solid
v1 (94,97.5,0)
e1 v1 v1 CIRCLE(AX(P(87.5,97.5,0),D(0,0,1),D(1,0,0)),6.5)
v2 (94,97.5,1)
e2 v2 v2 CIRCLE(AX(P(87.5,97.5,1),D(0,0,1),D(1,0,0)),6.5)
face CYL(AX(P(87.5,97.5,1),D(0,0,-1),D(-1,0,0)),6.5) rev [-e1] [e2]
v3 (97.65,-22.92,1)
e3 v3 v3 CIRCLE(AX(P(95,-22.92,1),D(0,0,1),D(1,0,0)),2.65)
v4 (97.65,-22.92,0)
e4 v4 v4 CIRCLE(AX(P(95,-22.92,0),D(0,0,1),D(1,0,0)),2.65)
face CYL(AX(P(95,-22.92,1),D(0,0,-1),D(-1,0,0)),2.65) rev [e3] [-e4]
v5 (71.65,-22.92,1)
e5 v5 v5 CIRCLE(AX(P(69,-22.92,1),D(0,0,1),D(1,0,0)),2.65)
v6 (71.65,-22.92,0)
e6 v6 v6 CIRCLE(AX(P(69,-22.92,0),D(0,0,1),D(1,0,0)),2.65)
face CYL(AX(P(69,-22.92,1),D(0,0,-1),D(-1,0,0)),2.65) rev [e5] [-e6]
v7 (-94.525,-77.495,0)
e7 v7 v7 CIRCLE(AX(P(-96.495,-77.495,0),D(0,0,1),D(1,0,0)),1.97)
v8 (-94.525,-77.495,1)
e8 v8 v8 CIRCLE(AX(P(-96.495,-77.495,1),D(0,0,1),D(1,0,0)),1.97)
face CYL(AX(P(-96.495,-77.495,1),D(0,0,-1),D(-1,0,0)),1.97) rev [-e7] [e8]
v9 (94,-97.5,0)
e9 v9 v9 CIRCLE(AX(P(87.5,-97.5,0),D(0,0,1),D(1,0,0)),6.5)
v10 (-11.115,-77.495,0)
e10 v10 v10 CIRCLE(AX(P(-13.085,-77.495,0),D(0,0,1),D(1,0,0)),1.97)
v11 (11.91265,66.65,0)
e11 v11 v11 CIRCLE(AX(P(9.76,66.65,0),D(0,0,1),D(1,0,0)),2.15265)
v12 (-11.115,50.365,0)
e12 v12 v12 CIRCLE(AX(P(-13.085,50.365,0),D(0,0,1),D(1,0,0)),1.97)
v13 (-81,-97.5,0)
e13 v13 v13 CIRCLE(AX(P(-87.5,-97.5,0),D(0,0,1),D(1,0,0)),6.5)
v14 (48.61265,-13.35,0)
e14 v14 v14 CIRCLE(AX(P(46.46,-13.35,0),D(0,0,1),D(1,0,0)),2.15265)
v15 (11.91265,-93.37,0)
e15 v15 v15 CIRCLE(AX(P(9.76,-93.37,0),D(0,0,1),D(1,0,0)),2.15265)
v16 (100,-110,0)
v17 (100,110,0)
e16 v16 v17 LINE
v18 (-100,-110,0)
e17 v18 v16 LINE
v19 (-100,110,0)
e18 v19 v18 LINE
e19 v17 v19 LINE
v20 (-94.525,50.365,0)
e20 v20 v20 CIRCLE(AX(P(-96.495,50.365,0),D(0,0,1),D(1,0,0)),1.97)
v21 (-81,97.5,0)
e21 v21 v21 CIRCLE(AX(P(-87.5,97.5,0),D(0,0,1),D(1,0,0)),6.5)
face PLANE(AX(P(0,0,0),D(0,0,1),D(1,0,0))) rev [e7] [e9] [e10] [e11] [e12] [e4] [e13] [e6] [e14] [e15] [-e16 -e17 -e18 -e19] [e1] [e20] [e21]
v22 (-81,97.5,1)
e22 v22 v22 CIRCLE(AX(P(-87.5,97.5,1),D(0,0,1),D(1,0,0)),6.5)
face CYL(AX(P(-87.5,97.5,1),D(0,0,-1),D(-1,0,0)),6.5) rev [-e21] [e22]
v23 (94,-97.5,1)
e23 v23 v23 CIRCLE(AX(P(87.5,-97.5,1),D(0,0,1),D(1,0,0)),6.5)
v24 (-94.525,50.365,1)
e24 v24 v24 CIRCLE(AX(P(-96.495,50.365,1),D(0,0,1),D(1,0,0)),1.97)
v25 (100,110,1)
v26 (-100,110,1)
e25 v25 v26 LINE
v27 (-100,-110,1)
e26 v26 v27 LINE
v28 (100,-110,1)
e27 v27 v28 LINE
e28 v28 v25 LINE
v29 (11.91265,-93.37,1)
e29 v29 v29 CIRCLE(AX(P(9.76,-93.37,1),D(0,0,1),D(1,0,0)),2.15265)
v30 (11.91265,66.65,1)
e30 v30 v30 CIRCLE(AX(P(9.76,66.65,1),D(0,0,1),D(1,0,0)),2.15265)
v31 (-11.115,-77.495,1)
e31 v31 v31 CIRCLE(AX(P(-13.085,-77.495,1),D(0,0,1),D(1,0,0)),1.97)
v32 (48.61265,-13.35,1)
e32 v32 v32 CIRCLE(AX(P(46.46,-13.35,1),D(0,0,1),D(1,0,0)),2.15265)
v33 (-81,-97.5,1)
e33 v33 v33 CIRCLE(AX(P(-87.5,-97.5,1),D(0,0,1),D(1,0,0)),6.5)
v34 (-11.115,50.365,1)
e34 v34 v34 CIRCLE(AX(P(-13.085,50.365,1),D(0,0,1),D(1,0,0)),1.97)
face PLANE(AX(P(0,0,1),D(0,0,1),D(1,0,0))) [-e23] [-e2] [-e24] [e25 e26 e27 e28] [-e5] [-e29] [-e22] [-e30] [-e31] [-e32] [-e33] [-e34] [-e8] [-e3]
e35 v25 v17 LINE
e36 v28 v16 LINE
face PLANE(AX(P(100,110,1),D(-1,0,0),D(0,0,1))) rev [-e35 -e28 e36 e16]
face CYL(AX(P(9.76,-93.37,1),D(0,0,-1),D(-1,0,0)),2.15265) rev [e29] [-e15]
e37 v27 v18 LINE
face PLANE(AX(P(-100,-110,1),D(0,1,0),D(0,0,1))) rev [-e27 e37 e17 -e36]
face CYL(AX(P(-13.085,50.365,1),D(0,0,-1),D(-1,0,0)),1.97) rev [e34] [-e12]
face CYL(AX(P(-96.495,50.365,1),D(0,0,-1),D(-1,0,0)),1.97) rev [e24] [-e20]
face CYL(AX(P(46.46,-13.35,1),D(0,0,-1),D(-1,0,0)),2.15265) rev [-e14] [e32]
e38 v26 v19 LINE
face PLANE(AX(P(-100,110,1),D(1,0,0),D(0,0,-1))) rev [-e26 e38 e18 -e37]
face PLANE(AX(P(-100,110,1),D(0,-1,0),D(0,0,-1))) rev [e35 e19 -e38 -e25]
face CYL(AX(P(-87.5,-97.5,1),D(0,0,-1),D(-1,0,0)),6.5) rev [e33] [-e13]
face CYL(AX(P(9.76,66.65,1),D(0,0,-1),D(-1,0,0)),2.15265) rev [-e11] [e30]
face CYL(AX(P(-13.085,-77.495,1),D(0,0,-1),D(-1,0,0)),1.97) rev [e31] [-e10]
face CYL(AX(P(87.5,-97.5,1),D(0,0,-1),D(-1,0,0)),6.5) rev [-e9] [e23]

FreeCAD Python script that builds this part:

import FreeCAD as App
import Part
import Sketcher
from FreeCAD import Vector
Q = App.Units.Quantity

doc = App.newDocument("Part")
params = doc.addObject("Spreadsheet::Sheet", "Params")
for row, (alias, value) in enumerate([
    ("sketch1_diameter", "13 mm"),
    ("sketch1_diameter2", "5.3 mm"),
    ("sketch1_diameter3", "3.94 mm"),
    ("sketch1_width", "200 mm"),
    ("sketch1_height", "220 mm"),
    ("pad1_length", "1 mm"),
], start=1):
    params.set(f"A{row}", alias)
    params.set(f"B{row}", "=" + value)
    params.setAlias(f"B{row}", alias)

body = doc.addObject("PartDesign::Body", "Body")

# Sketch on XY plane
sketch1 = body.newObject("Sketcher::SketchObject", "Sketch")
sketch1.AttachmentSupport = (doc.getObject("XY_Plane"), [""])
sketch1.MapMode = "FlatFace"
sketch1.addGeometry(Part.LineSegment(Vector(-100, 110, 0), Vector(-100, -110, 0)), False)
sketch1.addGeometry(Part.LineSegment(Vector(-100, -110, 0), Vector(100, -110, 0)), False)
sketch1.addGeometry(Part.LineSegment(Vector(100, -110, 0), Vector(100, 110, 0)), False)
sketch1.addGeometry(Part.LineSegment(Vector(100, 110, 0), Vector(-100, 110, 0)), False)
sketch1.addGeometry(Part.Circle(Vector(-87.5, -97.5, 0), Vector(0, 0, 1), 6.5), False)
sketch1.addGeometry(Part.Circle(Vector(-96.5, -77.5, 0), Vector(0, 0, 1), 2), False)
sketch1.addGeometry(Part.Circle(Vector(-13.1, -77.5, 0), Vector(0, 0, 1), 2), False)
sketch1.addGeometry(Part.Circle(Vector(9.8, -93.4, 0), Vector(0, 0, 1), 2.2), False)
sketch1.addGeometry(Part.Circle(Vector(87.5, -97.5, 0), Vector(0, 0, 1), 6.5), False)
sketch1.addGeometry(Part.Circle(Vector(46.5, -13.3, 0), Vector(0, 0, 1), 2.2), False)
sketch1.addGeometry(Part.Circle(Vector(69, -22.9, 0), Vector(0, 0, 1), 2.6), False)
sketch1.addGeometry(Part.Circle(Vector(95, -22.9, 0), Vector(0, 0, 1), 2.6), False)
sketch1.addGeometry(Part.Circle(Vector(-96.5, 50.4, 0), Vector(0, 0, 1), 2), False)
sketch1.addGeometry(Part.Circle(Vector(-13.1, 50.4, 0), Vector(0, 0, 1), 2), False)
sketch1.addGeometry(Part.Circle(Vector(-87.5, 97.5, 0), Vector(0, 0, 1), 6.5), False)
sketch1.addGeometry(Part.Circle(Vector(9.8, 66.7, 0), Vector(0, 0, 1), 2.2), False)
sketch1.addGeometry(Part.Circle(Vector(87.5, 97.5, 0), Vector(0, 0, 1), 6.5), False)
sketch1.addConstraint(Sketcher.Constraint("Coincident", 0, 2, 1, 1))
sketch1.addConstraint(Sketcher.Constraint("Coincident", 1, 2, 2, 1))
sketch1.addConstraint(Sketcher.Constraint("Coincident", 2, 2, 3, 1))
sketch1.addConstraint(Sketcher.Constraint("Coincident", 3, 2, 0, 1))
sketch1.addConstraint(Sketcher.Constraint("Vertical", 0))
sketch1.addConstraint(Sketcher.Constraint("Horizontal", 1))
sketch1.addConstraint(Sketcher.Constraint("Vertical", 2))
sketch1.addConstraint(Sketcher.Constraint("Horizontal", 3))
sketch1.addConstraint(Sketcher.Constraint("Equal", 5, 6))
sketch1.addConstraint(Sketcher.Constraint("Equal", 4, 8))
sketch1.addConstraint(Sketcher.Constraint("Equal", 7, 9))
sketch1.addConstraint(Sketcher.Constraint("Equal", 10, 11))
sketch1.addConstraint(Sketcher.Constraint("Equal", 6, 12))
sketch1.addConstraint(Sketcher.Constraint("Equal", 12, 13))
sketch1.addConstraint(Sketcher.Constraint("Equal", 8, 14))
sketch1.addConstraint(Sketcher.Constraint("Equal", 9, 15))
sketch1.addConstraint(Sketcher.Constraint("Equal", 14, 16))
sketch1.addConstraint(Sketcher.Constraint("Symmetric", 8, 3, 14, 3, -1, 1))
sketch1.addConstraint(Sketcher.Constraint("Symmetric", 4, 3, 16, 3, -1, 1))
sketch1.addConstraint(Sketcher.Constraint("Symmetric", 0, 2, 2, 2, -1, 1))
sketch1.addConstraint(Sketcher.Constraint("Symmetric", 4, 3, 8, 3, -2))
sketch1.addConstraint(Sketcher.Constraint("Horizontal", 5, 3, 6, 3))
sketch1.addConstraint(Sketcher.Constraint("Horizontal", 10, 3, 11, 3))
sketch1.addConstraint(Sketcher.Constraint("Horizontal", 12, 3, 13, 3))
sketch1.addConstraint(Sketcher.Constraint("Vertical", 5, 3, 12, 3))
sketch1.addConstraint(Sketcher.Constraint("Vertical", 6, 3, 13, 3))
sketch1.addConstraint(Sketcher.Constraint("Vertical", 7, 3, 15, 3))
sketch1.addConstraint(Sketcher.Constraint("Diameter", 4, Q("13 mm")))
sketch1.addConstraint(Sketcher.Constraint("Diameter", 10, Q("5.3 mm")))
sketch1.addConstraint(Sketcher.Constraint("Diameter", 5, Q("3.94 mm")))
sketch1.addConstraint(Sketcher.Constraint("DistanceX", 1, 1, 1, 2, Q("200 mm")))
sketch1.addConstraint(Sketcher.Constraint("DistanceY", 0, 2, 0, 1, Q("220 mm")))
sketch1.addConstraint(Sketcher.Constraint("DistanceX", -1, 1, 10, 3, Q("69 mm")))
sketch1.addConstraint(Sketcher.Constraint("DistanceX", -1, 1, 11, 3, Q("95 mm")))
sketch1.addConstraint(Sketcher.Constraint("DistanceX", 4, 3, 8, 3, Q("175 mm")))
sketch1.addConstraint(Sketcher.Constraint("DistanceY", 9, 3, 15, 3, Q("80 mm")))
sketch1.addConstraint(Sketcher.Constraint("Diameter", 7, Q("4.3053 mm")))
sketch1.addConstraint(Sketcher.Constraint("DistanceY", 4, 3, -1, 1, Q("97.5 mm")))
sketch1.addConstraint(Sketcher.Constraint("DistanceX", 7, 3, 9, 3, Q("36.7 mm")))
sketch1.addConstraint(Sketcher.Constraint("DistanceX", -1, 1, 7, 3, Q("9.76 mm")))
sketch1.addConstraint(Sketcher.Constraint("DistanceY", 7, 3, -1, 1, Q("93.37 mm")))
sketch1.addConstraint(Sketcher.Constraint("DistanceY", 9, 3, -1, 1, Q("13.35 mm")))
sketch1.addConstraint(Sketcher.Constraint("DistanceY", 10, 3, -1, 1, Q("22.92 mm")))
sketch1.addConstraint(Sketcher.Constraint("DistanceX", 5, 3, 6, 3, Q("83.41 mm")))
sketch1.addConstraint(Sketcher.Constraint("DistanceY", 5, 3, 12, 3, Q("127.86 mm")))
sketch1.addConstraint(Sketcher.Constraint("DistanceX", 5, 3, -1, 1, Q("96.495 mm")))
sketch1.addConstraint(Sketcher.Constraint("DistanceY", 5, 3, -1, 1, Q("77.495 mm")))
sketch1.setExpression("Constraints[27]", "Params.sketch1_diameter")
sketch1.setExpression("Constraints[28]", "Params.sketch1_diameter2")
sketch1.setExpression("Constraints[29]", "Params.sketch1_diameter3")
sketch1.setExpression("Constraints[30]", "Params.sketch1_width")
sketch1.setExpression("Constraints[31]", "Params.sketch1_height")
pad1 = body.newObject("PartDesign::Pad", "Pad")
pad1.Profile = sketch1
pad1.setExpression("Length", "Params.pad1_length")

doc.recompute()
